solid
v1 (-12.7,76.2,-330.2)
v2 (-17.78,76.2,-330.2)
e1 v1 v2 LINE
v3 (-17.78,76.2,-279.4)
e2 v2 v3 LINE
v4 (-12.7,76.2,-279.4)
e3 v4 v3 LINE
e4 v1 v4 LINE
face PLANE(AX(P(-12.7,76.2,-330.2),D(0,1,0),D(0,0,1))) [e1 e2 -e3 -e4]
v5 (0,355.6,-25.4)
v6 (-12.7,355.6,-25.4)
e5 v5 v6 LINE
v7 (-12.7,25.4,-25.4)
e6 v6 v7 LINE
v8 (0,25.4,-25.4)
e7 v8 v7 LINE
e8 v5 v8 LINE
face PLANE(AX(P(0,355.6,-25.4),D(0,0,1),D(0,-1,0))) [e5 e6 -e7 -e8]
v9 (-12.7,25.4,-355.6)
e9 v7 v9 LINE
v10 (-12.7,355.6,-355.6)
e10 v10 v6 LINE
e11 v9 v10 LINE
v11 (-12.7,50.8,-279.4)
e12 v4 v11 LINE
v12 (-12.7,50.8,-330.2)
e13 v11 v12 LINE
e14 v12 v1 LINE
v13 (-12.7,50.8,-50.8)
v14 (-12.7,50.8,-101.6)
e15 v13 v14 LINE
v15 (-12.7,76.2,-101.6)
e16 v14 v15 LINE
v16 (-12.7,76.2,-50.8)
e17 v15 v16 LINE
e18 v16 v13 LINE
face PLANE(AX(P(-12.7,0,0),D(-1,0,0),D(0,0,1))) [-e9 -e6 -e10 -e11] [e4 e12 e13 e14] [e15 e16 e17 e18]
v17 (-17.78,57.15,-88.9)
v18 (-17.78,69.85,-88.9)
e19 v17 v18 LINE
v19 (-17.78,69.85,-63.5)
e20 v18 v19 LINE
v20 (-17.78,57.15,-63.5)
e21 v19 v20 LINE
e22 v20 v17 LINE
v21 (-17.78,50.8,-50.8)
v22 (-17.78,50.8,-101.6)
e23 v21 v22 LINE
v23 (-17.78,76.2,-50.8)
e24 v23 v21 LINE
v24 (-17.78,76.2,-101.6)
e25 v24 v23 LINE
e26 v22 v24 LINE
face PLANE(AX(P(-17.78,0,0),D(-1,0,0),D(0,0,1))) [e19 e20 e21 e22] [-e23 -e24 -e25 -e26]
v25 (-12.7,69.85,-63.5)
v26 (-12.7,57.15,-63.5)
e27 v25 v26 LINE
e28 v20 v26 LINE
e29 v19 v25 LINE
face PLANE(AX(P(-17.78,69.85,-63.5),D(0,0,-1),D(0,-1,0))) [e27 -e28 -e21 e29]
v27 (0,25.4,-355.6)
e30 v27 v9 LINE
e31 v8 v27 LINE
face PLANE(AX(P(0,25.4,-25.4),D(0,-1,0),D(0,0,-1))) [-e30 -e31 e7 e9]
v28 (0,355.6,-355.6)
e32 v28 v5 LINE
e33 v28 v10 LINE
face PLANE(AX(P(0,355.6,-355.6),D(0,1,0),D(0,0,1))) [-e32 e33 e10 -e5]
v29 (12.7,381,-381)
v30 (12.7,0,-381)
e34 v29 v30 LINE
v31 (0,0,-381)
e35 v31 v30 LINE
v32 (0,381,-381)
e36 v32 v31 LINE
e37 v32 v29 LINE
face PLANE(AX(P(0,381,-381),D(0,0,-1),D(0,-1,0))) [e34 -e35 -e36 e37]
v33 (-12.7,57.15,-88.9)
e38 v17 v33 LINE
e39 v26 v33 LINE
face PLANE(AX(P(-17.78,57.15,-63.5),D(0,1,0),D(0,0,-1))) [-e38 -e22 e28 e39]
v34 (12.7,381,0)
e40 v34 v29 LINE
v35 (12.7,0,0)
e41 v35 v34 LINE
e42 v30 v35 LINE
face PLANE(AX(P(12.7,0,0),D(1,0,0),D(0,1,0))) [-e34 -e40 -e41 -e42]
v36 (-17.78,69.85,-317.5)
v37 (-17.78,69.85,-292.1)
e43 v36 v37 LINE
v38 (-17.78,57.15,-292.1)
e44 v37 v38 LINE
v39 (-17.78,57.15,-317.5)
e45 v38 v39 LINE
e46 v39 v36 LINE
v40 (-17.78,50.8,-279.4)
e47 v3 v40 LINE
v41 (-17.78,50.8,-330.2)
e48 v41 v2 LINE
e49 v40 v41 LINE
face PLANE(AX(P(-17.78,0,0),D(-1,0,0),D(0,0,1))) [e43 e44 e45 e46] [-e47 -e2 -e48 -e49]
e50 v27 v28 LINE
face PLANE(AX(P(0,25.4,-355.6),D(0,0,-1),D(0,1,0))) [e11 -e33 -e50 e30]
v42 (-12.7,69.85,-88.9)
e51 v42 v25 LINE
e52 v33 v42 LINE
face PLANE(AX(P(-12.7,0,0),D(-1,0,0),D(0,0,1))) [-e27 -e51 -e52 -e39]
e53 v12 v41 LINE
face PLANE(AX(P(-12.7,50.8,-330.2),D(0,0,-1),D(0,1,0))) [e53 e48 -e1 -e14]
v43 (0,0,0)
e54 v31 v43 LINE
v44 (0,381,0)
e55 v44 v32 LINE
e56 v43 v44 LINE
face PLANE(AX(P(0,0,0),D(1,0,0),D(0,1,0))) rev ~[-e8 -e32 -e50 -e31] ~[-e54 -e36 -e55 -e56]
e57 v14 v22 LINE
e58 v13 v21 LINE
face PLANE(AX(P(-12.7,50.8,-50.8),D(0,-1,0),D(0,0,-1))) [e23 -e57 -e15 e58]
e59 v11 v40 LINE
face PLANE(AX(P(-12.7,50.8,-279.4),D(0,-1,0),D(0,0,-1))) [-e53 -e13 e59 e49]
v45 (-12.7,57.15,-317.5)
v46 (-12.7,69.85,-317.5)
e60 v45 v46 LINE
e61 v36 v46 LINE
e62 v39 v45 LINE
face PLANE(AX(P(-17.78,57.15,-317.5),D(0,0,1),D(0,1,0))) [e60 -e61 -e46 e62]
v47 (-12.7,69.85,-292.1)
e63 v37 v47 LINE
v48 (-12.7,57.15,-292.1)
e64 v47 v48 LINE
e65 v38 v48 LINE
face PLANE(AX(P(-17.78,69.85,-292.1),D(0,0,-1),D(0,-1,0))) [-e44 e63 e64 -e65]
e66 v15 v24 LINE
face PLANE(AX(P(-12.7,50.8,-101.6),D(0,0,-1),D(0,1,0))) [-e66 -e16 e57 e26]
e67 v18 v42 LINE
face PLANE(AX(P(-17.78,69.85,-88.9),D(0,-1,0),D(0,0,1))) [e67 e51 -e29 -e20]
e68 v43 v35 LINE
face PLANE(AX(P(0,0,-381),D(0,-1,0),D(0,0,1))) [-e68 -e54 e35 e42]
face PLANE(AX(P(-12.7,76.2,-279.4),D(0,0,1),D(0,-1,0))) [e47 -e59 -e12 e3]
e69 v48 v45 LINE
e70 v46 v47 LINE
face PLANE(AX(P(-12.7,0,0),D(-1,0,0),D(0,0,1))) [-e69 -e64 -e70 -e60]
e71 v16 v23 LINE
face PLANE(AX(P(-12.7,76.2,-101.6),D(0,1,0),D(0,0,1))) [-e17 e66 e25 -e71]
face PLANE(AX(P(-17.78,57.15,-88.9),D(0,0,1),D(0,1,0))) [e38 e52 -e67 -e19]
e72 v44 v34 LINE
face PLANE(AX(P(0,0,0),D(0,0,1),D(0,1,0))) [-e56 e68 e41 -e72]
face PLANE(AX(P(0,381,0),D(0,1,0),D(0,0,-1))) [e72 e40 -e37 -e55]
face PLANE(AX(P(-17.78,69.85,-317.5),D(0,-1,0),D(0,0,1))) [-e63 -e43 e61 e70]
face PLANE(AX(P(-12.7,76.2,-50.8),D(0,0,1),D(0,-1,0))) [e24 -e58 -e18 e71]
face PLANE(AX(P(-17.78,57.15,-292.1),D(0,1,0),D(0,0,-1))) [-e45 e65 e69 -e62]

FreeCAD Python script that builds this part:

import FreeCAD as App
import Part
import Sketcher

V = App.Vector
Q = App.Units.Quantity


def add_polygon(sketch, points):
    """Adds a closed chain of lines whose ends are joined by coincident constraints."""
    first, n = sketch.GeometryCount, len(points)
    for a, b in zip(points, points[1:] + points[:1]):
        sketch.addGeometry(Part.LineSegment(App.Vector(*a, 0), App.Vector(*b, 0)), False)
    for i in range(n):
        sketch.addConstraint(Sketcher.Constraint("Coincident", first + i, 2, first + (i + 1) % n, 1))

doc = App.newDocument("Part")
params = doc.addObject("Spreadsheet::Sheet", "Params")
for row, (alias, value) in enumerate([
    ("sketch1_width", "15 in"),
    ("pad1_length", "0.5 in"),
    ("sketch2_width", "13 in"),
    ("pad2_length", "0.5 in"),
    ("sketch3_width", "1 in"),
    ("sketch3_height", "2 in"),
    ("pad3_length", "0.2 in"),
    ("sketch4_width", "1 in"),
    ("sketch4_height", "2 in"),
    ("pad4_length", "0.2 in"),
    ("sketch5_width", "0.5 in"),
    ("sketch5_height", "1 in"),
    ("pocket1_length", "0.2 in"),
    ("sketch6_width", "0.5 in"),
    ("sketch6_height", "1 in"),
    ("pocket2_length", "0.2 in"),
], start=1):
    params.set(f"A{row}", alias)
    params.set(f"B{row}", "=" + value)
    params.setAlias(f"B{row}", alias)

body = doc.addObject("PartDesign::Body", "Body")

# Sketch on YZ plane
sketch1 = body.newObject("Sketcher::SketchObject", "Sketch")
sketch1.AttachmentSupport = (doc.getObject("YZ_Plane"), [""])
sketch1.MapMode = "FlatFace"
add_polygon(sketch1, [(381, 0), (0, 0), (0, -381), (381, -381)])  # lines 0-3
sketch1.addConstraint([
    Sketcher.Constraint("Horizontal", 0),
    Sketcher.Constraint("Vertical", 1),
    Sketcher.Constraint("Horizontal", 2),
    Sketcher.Constraint("Vertical", 3),
    Sketcher.Constraint("Coincident", 0, 2, -1, 1),
    Sketcher.Constraint("Equal", 2, 1),
    Sketcher.Constraint("DistanceX", 0, 2, 0, 1, Q("15 in")),
])
sketch1.setExpression("Constraints[10]", "Params.sketch1_width")
pad1 = body.newObject("PartDesign::Pad", "Pad")
pad1.Profile = sketch1
pad1.setExpression("Length", "Params.pad1_length")

# Sketch on YZ plane
sketch2 = body.newObject("Sketcher::SketchObject", "Sketch001")
sketch2.AttachmentSupport = (doc.getObject("YZ_Plane"), [""])
sketch2.MapMode = "FlatFace"
add_polygon(sketch2, [(356, -25), (356, -356), (25, -356), (25, -25)])  # lines 0-3
sketch2.addConstraint([
    Sketcher.Constraint("Vertical", 0),
    Sketcher.Constraint("Horizontal", 1),
    Sketcher.Constraint("Vertical", 2),
    Sketcher.Constraint("Horizontal", 3),
    Sketcher.Constraint("Equal", 3, 0),
    Sketcher.Constraint("DistanceX", -1, 1, 1, 2, Q("1 in")),
    Sketcher.Constraint("DistanceY", 2, 2, -1, 1, Q("1 in")),
    Sketcher.Constraint("DistanceX", 1, 2, 1, 1, Q("13 in")),
])
sketch2.setExpression("Constraints[11]", "Params.sketch2_width")
pad2 = body.newObject("PartDesign::Pad", "Pad001")
pad2.Profile = sketch2
pad2.setExpression("Length", "Params.pad2_length")
pad2.Reversed = True

# Sketch on YZ plane
sketch3 = body.newObject("Sketcher::SketchObject", "Sketch002")
sketch3.AttachmentSupport = (doc.getObject("YZ_Plane"), [""])
sketch3.MapMode = "FlatFace"
sketch3.AttachmentOffset = App.Placement(V(0, 0, -0.5 * 25.4), App.Rotation())
add_polygon(sketch3, [(76, -279), (76, -330), (51, -330), (51, -279)])  # lines 0-3
sketch3.addConstraint([
    Sketcher.Constraint("Vertical", 0),
    Sketcher.Constraint("Horizontal", 1),
    Sketcher.Constraint("Vertical", 2),
    Sketcher.Constraint("Horizontal", 3),
    Sketcher.Constraint("DistanceX", 1, 2, 1, 1, Q("1 in")),
    Sketcher.Constraint("DistanceY", 0, 2, 0, 1, Q("2 in")),
    Sketcher.Constraint("DistanceX", -1, 1, 1, 2, Q("2 in")),
    Sketcher.Constraint("DistanceY", 0, 2, -1, 1, Q("13 in")),
])
sketch3.setExpression("Constraints[8]", "Params.sketch3_width")
sketch3.setExpression("Constraints[9]", "Params.sketch3_height")
pad3 = body.newObject("PartDesign::Pad", "Pad002")
pad3.Profile = sketch3
pad3.setExpression("Length", "Params.pad3_length")
pad3.Reversed = True

# Sketch on YZ plane
sketch4 = body.newObject("Sketcher::SketchObject", "Sketch003")
sketch4.AttachmentSupport = (doc.getObject("YZ_Plane"), [""])
sketch4.MapMode = "FlatFace"
sketch4.AttachmentOffset = App.Placement(V(0, 0, -0.5 * 25.4), App.Rotation())
add_polygon(sketch4, [(76, -51), (76, -102), (51, -102), (51, -51)])  # lines 0-3
sketch4.addConstraint([
    Sketcher.Constraint("Vertical", 0),
    Sketcher.Constraint("Horizontal", 1),
    Sketcher.Constraint("Vertical", 2),
    Sketcher.Constraint("Horizontal", 3),
    Sketcher.Constraint("DistanceX", 1, 2, 1, 1, Q("1 in")),
    Sketcher.Constraint("DistanceY", 0, 2, 0, 1, Q("2 in")),
    Sketcher.Constraint("DistanceX", -1, 1, 1, 2, Q("2 in")),
    Sketcher.Constraint("DistanceY", 2, 2, -1, 1, Q("2 in")),
])
sketch4.setExpression("Constraints[8]", "Params.sketch4_width")
sketch4.setExpression("Constraints[9]", "Params.sketch4_height")
pad4 = body.newObject("PartDesign::Pad", "Pad003")
pad4.Profile = sketch4
pad4.setExpression("Length", "Params.pad4_length")
pad4.Reversed = True

# Sketch on YZ plane
sketch5 = body.newObject("Sketcher::SketchObject", "Sketch004")
sketch5.AttachmentSupport = (doc.getObject("YZ_Plane"), [""])
sketch5.MapMode = "FlatFace"
sketch5.AttachmentOffset = App.Placement(V(0, 0, -0.7 * 25.4), App.Rotation())
add_polygon(sketch5, [(70, -292), (70, -318), (57, -318), (57, -292)])  # lines 0-3
sketch5.addConstraint([
    Sketcher.Constraint("Vertical", 0),
    Sketcher.Constraint("Horizontal", 1),
    Sketcher.Constraint("Vertical", 2),
    Sketcher.Constraint("Horizontal", 3),
    Sketcher.Constraint("DistanceX", 1, 2, 1, 1, Q("0.5 in")),
    Sketcher.Constraint("DistanceY", 0, 2, 0, 1, Q("1 in")),
    Sketcher.Constraint("DistanceY", 0, 2, -1, 1, Q("12.5 in")),
    Sketcher.Constraint("DistanceX", -1, 1, 0, 2, Q("2.75 in")),
])
sketch5.setExpression("Constraints[8]", "Params.sketch5_width")
sketch5.setExpression("Constraints[9]", "Params.sketch5_height")
pocket1 = body.newObject("PartDesign::Pocket", "Pocket")
pocket1.Profile = sketch5
pocket1.setExpression("Length", "Params.pocket1_length")
pocket1.Reversed = True

# Sketch on YZ plane
sketch6 = body.newObject("Sketcher::SketchObject", "Sketch005")
sketch6.AttachmentSupport = (doc.getObject("YZ_Plane"), [""])
sketch6.MapMode = "FlatFace"
sketch6.AttachmentOffset = App.Placement(V(0, 0, -0.7 * 25.4), App.Rotation())
add_polygon(sketch6, [(70, -64), (70, -89), (57, -89), (57, -64)])  # lines 0-3
sketch6.addConstraint([
    Sketcher.Constraint("Vertical", 0),
    Sketcher.Constraint("Horizontal", 1),
    Sketcher.Constraint("Vertical", 2),
    Sketcher.Constraint("Horizontal", 3),
    Sketcher.Constraint("DistanceX", 1, 2, 1, 1, Q("0.5 in")),
    Sketcher.Constraint("DistanceY", 0, 2, 0, 1, Q("1 in")),
    Sketcher.Constraint("DistanceY", 0, 2, -1, 1, Q("3.5 in")),
    Sketcher.Constraint("DistanceX", -1, 1, 0, 2, Q("2.75 in")),
])
sketch6.setExpression("Constraints[8]", "Params.sketch6_width")
sketch6.setExpression("Constraints[9]", "Params.sketch6_height")
pocket2 = body.newObject("PartDesign::Pocket", "Pocket001")
pocket2.Profile = sketch6
pocket2.setExpression("Length", "Params.pocket2_length")
pocket2.Reversed = True

doc.recompute()
